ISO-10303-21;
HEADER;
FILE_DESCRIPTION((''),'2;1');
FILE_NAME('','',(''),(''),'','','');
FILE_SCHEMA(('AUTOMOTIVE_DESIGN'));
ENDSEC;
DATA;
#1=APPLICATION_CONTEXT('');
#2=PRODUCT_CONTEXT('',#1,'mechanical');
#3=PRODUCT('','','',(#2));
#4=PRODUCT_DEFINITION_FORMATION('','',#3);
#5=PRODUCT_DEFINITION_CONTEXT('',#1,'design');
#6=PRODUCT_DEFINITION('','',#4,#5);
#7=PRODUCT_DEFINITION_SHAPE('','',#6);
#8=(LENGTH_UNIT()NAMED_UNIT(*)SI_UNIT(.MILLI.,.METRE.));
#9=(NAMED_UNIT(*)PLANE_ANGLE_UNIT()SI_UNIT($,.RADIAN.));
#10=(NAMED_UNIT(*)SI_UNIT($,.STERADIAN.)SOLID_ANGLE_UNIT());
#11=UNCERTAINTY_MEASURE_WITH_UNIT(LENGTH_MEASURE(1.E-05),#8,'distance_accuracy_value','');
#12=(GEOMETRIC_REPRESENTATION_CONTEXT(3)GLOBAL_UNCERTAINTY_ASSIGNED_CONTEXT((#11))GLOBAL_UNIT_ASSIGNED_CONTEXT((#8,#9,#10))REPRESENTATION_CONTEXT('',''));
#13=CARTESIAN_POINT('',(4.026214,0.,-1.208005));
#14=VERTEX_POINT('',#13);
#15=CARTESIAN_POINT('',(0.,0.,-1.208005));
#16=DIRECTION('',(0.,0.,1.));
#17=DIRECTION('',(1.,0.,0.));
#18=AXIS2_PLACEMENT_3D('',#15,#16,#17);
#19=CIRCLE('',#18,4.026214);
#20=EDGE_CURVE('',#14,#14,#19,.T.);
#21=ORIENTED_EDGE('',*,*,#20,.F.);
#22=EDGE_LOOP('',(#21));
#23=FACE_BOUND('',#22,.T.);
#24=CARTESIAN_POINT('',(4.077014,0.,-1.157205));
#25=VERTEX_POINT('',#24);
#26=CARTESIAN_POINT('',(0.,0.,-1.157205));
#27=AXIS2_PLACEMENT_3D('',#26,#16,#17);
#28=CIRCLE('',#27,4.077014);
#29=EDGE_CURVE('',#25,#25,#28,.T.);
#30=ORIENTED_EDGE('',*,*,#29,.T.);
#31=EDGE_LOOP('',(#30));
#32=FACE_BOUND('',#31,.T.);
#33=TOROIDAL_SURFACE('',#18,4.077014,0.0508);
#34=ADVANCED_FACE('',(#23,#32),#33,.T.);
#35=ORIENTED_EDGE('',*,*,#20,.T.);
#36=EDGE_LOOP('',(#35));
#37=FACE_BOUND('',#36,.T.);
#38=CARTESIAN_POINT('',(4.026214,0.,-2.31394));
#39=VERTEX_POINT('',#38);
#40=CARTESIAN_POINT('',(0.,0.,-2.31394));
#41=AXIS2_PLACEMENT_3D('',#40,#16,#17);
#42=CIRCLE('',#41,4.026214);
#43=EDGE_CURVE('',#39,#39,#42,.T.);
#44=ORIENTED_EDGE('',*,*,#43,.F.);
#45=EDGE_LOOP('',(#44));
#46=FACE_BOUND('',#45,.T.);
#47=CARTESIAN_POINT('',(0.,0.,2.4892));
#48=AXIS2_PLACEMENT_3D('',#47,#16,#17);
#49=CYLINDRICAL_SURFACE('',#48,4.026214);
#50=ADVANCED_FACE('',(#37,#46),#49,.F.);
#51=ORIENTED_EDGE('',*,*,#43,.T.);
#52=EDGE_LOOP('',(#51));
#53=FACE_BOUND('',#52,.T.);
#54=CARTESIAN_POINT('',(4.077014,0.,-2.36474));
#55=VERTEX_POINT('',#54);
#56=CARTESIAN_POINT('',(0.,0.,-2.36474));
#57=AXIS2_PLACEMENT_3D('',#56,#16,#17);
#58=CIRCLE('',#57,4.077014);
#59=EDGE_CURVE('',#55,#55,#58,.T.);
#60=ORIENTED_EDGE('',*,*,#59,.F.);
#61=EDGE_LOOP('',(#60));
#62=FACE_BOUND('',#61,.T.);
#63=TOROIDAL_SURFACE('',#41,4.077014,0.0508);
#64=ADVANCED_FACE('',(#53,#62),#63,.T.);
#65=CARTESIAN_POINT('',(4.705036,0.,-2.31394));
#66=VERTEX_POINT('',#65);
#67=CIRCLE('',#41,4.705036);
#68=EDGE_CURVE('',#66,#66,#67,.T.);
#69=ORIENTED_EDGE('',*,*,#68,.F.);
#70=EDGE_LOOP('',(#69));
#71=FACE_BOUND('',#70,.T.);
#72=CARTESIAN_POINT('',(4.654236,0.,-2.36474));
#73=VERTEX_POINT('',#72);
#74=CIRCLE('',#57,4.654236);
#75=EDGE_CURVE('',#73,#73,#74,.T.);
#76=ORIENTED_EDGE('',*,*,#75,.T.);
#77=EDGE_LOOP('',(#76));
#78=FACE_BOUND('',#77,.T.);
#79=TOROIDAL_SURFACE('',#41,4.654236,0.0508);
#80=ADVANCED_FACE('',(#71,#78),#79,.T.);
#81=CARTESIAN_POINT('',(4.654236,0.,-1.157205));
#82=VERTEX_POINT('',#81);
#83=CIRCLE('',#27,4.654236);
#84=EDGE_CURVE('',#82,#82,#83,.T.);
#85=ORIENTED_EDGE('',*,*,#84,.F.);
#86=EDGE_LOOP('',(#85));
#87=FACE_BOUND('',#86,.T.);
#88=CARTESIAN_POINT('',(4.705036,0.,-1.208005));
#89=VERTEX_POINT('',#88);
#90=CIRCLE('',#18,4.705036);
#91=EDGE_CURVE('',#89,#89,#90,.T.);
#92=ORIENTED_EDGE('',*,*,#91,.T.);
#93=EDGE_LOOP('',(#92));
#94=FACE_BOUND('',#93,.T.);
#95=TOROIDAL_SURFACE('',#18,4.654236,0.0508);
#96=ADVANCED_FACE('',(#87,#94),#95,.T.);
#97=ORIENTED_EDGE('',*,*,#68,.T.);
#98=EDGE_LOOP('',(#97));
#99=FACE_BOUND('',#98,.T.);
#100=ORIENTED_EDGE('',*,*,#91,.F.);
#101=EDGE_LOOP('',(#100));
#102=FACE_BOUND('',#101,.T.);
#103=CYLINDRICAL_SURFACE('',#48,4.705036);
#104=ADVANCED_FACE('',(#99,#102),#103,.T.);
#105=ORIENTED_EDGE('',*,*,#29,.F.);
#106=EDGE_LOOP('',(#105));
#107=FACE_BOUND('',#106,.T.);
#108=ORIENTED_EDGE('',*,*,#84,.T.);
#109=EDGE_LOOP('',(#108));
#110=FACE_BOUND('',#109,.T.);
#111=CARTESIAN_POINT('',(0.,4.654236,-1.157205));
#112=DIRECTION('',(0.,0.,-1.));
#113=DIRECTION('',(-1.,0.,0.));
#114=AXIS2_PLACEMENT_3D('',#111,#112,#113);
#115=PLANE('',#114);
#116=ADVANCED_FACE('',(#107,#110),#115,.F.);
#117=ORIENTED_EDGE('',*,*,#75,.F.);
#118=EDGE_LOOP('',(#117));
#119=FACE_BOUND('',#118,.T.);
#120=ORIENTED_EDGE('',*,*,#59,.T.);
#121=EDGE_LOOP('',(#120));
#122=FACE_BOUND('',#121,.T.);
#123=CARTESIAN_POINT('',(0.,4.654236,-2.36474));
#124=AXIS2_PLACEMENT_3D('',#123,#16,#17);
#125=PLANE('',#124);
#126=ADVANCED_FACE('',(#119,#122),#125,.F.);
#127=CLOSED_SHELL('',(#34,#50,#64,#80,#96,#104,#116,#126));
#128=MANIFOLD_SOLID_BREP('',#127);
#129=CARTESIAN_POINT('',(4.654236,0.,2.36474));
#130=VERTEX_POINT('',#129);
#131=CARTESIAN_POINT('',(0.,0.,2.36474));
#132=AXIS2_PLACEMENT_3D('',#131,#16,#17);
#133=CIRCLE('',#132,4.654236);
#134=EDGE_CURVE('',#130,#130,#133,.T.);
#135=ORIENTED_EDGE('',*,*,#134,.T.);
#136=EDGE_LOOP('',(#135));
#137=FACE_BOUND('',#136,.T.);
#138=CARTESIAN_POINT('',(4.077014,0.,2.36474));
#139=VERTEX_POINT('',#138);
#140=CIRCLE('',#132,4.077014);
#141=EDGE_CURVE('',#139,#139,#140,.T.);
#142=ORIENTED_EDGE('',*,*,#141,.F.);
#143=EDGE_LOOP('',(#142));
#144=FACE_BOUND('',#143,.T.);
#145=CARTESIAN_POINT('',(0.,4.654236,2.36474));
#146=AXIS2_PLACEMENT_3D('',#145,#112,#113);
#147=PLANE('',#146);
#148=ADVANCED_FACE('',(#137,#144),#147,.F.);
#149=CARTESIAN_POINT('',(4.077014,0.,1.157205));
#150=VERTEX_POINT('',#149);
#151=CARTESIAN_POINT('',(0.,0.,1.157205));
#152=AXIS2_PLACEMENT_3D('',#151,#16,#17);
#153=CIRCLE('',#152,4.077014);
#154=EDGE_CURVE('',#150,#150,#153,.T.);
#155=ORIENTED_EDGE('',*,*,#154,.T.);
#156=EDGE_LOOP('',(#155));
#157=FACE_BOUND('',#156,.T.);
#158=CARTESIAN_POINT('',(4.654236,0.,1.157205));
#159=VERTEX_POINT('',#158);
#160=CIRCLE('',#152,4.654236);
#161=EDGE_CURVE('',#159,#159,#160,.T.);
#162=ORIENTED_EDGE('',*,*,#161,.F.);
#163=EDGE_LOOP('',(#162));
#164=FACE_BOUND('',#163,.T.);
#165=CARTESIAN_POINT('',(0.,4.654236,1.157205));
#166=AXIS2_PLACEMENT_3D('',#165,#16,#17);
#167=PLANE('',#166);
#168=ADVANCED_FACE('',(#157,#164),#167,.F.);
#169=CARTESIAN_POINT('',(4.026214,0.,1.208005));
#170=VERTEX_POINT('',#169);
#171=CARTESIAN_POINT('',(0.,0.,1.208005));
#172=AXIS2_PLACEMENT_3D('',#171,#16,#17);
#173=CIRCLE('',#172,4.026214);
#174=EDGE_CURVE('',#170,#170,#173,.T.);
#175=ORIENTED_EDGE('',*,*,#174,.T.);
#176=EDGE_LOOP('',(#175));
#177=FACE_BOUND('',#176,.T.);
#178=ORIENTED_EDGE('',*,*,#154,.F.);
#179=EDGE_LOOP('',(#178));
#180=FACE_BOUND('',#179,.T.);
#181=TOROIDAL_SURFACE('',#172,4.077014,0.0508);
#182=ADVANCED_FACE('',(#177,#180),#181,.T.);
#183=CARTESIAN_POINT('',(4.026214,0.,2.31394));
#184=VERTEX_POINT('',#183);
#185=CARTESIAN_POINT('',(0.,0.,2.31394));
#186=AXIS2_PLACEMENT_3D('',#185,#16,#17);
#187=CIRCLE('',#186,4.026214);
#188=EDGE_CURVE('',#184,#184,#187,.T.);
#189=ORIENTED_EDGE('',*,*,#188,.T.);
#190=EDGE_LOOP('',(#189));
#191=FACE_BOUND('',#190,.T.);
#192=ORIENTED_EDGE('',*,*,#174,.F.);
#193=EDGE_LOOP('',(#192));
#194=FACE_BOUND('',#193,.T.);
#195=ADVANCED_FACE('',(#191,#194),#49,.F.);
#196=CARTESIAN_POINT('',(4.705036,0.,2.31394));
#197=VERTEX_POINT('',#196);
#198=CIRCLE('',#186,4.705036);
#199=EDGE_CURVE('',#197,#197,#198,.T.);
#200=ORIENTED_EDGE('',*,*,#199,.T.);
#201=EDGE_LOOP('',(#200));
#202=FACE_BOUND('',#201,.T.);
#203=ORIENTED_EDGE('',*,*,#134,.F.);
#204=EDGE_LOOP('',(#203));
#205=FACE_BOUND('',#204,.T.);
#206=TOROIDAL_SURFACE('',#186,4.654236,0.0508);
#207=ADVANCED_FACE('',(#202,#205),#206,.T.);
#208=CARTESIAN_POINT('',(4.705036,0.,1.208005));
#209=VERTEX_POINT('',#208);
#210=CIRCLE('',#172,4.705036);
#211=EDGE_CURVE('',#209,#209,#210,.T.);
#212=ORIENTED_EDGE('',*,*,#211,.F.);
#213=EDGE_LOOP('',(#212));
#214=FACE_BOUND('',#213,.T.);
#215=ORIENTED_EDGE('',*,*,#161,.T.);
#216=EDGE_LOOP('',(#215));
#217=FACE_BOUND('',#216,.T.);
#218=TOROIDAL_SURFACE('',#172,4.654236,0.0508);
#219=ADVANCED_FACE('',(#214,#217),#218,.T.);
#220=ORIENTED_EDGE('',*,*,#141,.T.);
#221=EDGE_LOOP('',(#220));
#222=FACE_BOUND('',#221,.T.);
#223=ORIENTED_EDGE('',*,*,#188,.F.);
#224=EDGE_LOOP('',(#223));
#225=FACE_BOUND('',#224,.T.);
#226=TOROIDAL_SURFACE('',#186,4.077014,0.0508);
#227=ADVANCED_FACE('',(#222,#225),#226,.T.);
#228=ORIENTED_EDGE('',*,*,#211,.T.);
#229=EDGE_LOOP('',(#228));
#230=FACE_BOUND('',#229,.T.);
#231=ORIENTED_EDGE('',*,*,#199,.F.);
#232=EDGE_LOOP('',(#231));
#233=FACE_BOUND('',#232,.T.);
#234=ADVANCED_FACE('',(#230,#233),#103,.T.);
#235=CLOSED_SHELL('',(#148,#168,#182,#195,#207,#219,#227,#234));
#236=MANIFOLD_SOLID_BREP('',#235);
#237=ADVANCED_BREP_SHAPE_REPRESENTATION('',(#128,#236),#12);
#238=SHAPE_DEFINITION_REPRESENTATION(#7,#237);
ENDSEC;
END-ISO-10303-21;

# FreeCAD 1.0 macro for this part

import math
import FreeCAD as App
import Part
import Sketcher
from FreeCAD import Vector
Q = App.Units.Quantity

doc = App.newDocument("Part")
body = doc.addObject("PartDesign::Body", "Body")
body.AllowCompound = True

# Sketch on YZ plane
sketch1 = body.newObject("Sketcher::SketchObject", "Sketch")
sketch1.AttachmentSupport = (doc.getObject("YZ_Plane"), [""])
sketch1.MapMode = "FlatFace"
sketch1.addGeometry([
    Part.LineSegment(Vector(4.71, 1.21, 0), Vector(4.71, 2.31, 0)),  # 0
    Part.ArcOfCircle(Part.Circle(Vector(4.65, 2.31, 0), Vector(0, 0, 1), 0.05), math.radians(0), math.radians(90)),  # 1
    Part.LineSegment(Vector(4.65, 2.36, 0), Vector(4.08, 2.36, 0)),  # 2
    Part.ArcOfCircle(Part.Circle(Vector(4.08, 2.31, 0), Vector(0, 0, 1), 0.05), math.radians(90), math.radians(180)),  # 3
    Part.LineSegment(Vector(4.03, 2.31, 0), Vector(4.03, 1.21, 0)),  # 4
    Part.ArcOfCircle(Part.Circle(Vector(4.08, 1.21, 0), Vector(0, 0, 1), 0.05), math.radians(180), math.radians(270)),  # 5
    Part.LineSegment(Vector(4.08, 1.16, 0), Vector(4.65, 1.16, 0)),  # 6
    Part.ArcOfCircle(Part.Circle(Vector(4.65, 1.21, 0), Vector(0, 0, 1), 0.05), math.radians(-90), math.radians(0)),  # 7
    Part.LineSegment(Vector(4.71, -2.31, 0), Vector(4.71, -1.21, 0)),  # 8
    Part.ArcOfCircle(Part.Circle(Vector(4.65, -1.21, 0), Vector(0, 0, 1), 0.05), math.radians(0), math.radians(90)),  # 9
    Part.LineSegment(Vector(4.65, -1.16, 0), Vector(4.08, -1.16, 0)),  # 10
    Part.ArcOfCircle(Part.Circle(Vector(4.08, -1.21, 0), Vector(0, 0, 1), 0.05), math.radians(90), math.radians(180)),  # 11
    Part.LineSegment(Vector(4.03, -1.21, 0), Vector(4.03, -2.31, 0)),  # 12
    Part.ArcOfCircle(Part.Circle(Vector(4.08, -2.31, 0), Vector(0, 0, 1), 0.05), math.radians(-180), math.radians(-90)),  # 13
    Part.LineSegment(Vector(4.08, -2.36, 0), Vector(4.65, -2.36, 0)),  # 14
    Part.ArcOfCircle(Part.Circle(Vector(4.65, -2.31, 0), Vector(0, 0, 1), 0.05), math.radians(-90), math.radians(0)),  # 15
], False)
sketch1.addConstraint([
    Sketcher.Constraint("Tangent", 0, 2, 1, 1),
    Sketcher.Constraint("Tangent", 1, 2, 2, 1),
    Sketcher.Constraint("Tangent", 2, 2, 3, 1),
    Sketcher.Constraint("Tangent", 3, 2, 4, 1),
    Sketcher.Constraint("Tangent", 4, 2, 5, 1),
    Sketcher.Constraint("Tangent", 5, 2, 6, 1),
    Sketcher.Constraint("Tangent", 6, 2, 7, 1),
    Sketcher.Constraint("Tangent", 7, 2, 0, 1),
    Sketcher.Constraint("Tangent", 8, 2, 9, 1),
    Sketcher.Constraint("Tangent", 9, 2, 10, 1),
    Sketcher.Constraint("Tangent", 10, 2, 11, 1),
    Sketcher.Constraint("Tangent", 11, 2, 12, 1),
    Sketcher.Constraint("Tangent", 12, 2, 13, 1),
    Sketcher.Constraint("Tangent", 13, 2, 14, 1),
    Sketcher.Constraint("Tangent", 14, 2, 15, 1),
    Sketcher.Constraint("Tangent", 15, 2, 8, 1),
    Sketcher.Constraint("Vertical", 0),
    Sketcher.Constraint("Horizontal", 2),
    Sketcher.Constraint("Vertical", 4),
    Sketcher.Constraint("Horizontal", 6),
    Sketcher.Constraint("Vertical", 8),
    Sketcher.Constraint("Horizontal", 10),
    Sketcher.Constraint("Vertical", 12),
    Sketcher.Constraint("Horizontal", 14),
    Sketcher.Constraint("Equal", 1, 3),
    Sketcher.Constraint("Equal", 3, 5),
    Sketcher.Constraint("Equal", 5, 7),
    Sketcher.Constraint("Equal", 7, 9),
    Sketcher.Constraint("Equal", 9, 11),
    Sketcher.Constraint("Equal", 11, 13),
    Sketcher.Constraint("Equal", 13, 15),
    Sketcher.Constraint("Symmetric", 7, 3, 9, 3, -1),
    Sketcher.Constraint("Symmetric", 3, 3, 13, 3, -1),
    Sketcher.Constraint("Radius", 1, Q("0.002 in")),
    Sketcher.Constraint("DistanceY", -1, 1, 1, 3, Q("0.0911 in")),
    Sketcher.Constraint("DistanceX", 2, 2, 2, 1, Q("0.577222 mm")),
    Sketcher.Constraint("DistanceY", 0, 1, 0, 2, Q("1.105935 mm")),
    Sketcher.Constraint("DistanceX", -1, 1, 1, 3, Q("4.654236 mm")),
])
revolution = body.newObject("PartDesign::Revolution", "Revolution")
revolution.Profile = sketch1
revolution.ReferenceAxis = (sketch1, ["V_Axis"])
revolution.Angle = 360

doc.recompute()
